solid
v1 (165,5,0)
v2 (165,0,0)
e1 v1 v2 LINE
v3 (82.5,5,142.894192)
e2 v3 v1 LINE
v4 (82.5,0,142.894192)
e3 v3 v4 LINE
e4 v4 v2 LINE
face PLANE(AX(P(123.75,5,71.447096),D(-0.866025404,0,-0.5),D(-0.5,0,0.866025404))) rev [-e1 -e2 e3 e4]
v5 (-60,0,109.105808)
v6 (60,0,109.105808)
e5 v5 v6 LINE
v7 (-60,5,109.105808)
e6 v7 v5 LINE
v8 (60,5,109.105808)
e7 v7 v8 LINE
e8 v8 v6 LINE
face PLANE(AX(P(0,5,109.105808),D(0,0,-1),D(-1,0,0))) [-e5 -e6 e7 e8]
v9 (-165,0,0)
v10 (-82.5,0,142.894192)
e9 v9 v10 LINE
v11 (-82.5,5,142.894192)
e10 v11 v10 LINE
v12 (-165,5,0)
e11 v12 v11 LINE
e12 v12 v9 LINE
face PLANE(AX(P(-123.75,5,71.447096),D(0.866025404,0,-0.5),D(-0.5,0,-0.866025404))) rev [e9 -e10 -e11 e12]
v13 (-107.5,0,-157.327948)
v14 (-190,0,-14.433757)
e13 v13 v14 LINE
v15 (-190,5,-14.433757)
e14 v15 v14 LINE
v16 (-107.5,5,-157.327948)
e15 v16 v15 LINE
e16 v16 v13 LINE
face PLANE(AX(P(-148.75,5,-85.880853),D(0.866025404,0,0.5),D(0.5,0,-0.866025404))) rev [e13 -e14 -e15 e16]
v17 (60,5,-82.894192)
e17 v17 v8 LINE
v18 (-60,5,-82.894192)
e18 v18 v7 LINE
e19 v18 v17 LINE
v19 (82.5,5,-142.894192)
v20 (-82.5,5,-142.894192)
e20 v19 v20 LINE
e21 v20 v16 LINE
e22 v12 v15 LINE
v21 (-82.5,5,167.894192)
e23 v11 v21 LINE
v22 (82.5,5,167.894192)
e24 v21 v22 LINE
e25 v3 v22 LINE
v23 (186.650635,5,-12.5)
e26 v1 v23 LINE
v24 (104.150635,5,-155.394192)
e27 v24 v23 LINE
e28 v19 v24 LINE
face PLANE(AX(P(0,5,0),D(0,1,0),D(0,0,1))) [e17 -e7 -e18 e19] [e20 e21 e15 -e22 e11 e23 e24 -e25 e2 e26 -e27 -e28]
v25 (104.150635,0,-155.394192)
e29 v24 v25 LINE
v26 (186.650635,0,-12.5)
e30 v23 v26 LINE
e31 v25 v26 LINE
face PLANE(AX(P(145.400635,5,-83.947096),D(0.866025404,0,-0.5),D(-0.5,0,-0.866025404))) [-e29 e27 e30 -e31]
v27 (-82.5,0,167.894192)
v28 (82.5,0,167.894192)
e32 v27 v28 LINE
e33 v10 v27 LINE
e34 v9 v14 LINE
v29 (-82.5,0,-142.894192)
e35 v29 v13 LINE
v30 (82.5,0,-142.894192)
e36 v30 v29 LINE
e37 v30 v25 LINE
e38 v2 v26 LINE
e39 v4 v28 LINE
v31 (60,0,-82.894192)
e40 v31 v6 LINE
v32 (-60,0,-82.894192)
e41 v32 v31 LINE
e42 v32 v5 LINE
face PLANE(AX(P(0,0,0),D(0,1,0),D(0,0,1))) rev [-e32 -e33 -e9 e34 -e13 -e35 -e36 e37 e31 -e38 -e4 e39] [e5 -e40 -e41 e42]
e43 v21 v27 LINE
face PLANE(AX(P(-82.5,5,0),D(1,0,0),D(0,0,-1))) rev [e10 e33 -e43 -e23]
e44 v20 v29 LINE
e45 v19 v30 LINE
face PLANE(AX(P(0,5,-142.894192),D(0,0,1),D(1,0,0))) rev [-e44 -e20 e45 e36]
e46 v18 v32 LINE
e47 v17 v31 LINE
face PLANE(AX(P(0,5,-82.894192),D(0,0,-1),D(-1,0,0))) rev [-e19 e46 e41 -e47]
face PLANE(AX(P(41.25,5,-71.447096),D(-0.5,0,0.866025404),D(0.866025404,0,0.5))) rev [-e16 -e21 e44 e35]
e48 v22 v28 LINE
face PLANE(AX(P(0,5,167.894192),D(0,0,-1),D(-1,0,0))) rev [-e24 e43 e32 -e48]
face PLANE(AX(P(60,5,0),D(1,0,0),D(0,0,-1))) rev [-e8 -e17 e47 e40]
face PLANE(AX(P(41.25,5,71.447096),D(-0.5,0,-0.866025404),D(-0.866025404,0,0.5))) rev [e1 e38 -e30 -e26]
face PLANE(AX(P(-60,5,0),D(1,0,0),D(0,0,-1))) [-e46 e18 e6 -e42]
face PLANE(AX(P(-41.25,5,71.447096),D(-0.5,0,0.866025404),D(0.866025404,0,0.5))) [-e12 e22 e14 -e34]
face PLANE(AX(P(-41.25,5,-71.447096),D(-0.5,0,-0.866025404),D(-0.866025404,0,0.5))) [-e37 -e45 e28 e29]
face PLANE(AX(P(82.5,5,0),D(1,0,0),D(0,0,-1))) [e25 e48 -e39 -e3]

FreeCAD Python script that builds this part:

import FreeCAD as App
import Part
import Sketcher

V = App.Vector
Q = App.Units.Quantity

doc = App.newDocument("Part")
body = doc.addObject("PartDesign::Body", "Body")

# Sketch on XZ plane
sketch1 = doc.addObject("Sketcher::SketchObject", "Sketch")
body.addObject(sketch1)
sketch1.AttachmentSupport = (doc.XZ_Plane, [""])
sketch1.MapMode = "FlatFace"
sketch1.addGeometry([
    Part.LineSegment(V(-165, 0, 0), V(-82, 143, 0)),  # 0
    Part.LineSegment(V(-82, 143, 0), V(-82, 168, 0)),  # 1
    Part.LineSegment(V(-82, 168, 0), V(82, 168, 0)),  # 2
    Part.LineSegment(V(82, 168, 0), V(82, 143, 0)),  # 3
    Part.LineSegment(V(82, 143, 0), V(165, 0, 0)),  # 4
    Part.LineSegment(V(165, 0, 0), V(187, -12, 0)),  # 5
    Part.LineSegment(V(187, -12, 0), V(104, -155, 0)),  # 6
    Part.LineSegment(V(104, -155, 0), V(82, -143, 0)),  # 7
    Part.LineSegment(V(82, -143, 0), V(-82, -143, 0)),  # 8
    Part.LineSegment(V(-82, -143, 0), V(-108, -157, 0)),  # 9
    Part.LineSegment(V(-108, -157, 0), V(-190, -14, 0)),  # 10
    Part.LineSegment(V(-190, -14, 0), V(-165, 0, 0)),  # 11
    Part.LineSegment(V(60, 109, 0), V(-60, 109, 0)),  # 12
    Part.LineSegment(V(-60, 109, 0), V(-60, -83, 0)),  # 13
    Part.LineSegment(V(-60, -83, 0), V(60, -83, 0)),  # 14
    Part.LineSegment(V(60, -83, 0), V(60, 109, 0)),  # 15
], False)
sketch1.addConstraint([
    Sketcher.Constraint("Coincident", 0, 2, 1, 1),
    Sketcher.Constraint("Coincident", 1, 2, 2, 1),
    Sketcher.Constraint("Coincident", 2, 2, 3, 1),
    Sketcher.Constraint("Coincident", 3, 2, 4, 1),
    Sketcher.Constraint("Coincident", 4, 2, 5, 1),
    Sketcher.Constraint("Coincident", 5, 2, 6, 1),
    Sketcher.Constraint("Coincident", 6, 2, 7, 1),
    Sketcher.Constraint("Coincident", 7, 2, 8, 1),
    Sketcher.Constraint("Coincident", 8, 2, 9, 1),
    Sketcher.Constraint("Coincident", 9, 2, 10, 1),
    Sketcher.Constraint("Coincident", 10, 2, 11, 1),
    Sketcher.Constraint("Coincident", 11, 2, 0, 1),
    Sketcher.Constraint("Coincident", 12, 2, 13, 1),
    Sketcher.Constraint("Coincident", 13, 2, 14, 1),
    Sketcher.Constraint("Coincident", 14, 2, 15, 1),
    Sketcher.Constraint("Coincident", 15, 2, 12, 1),
    Sketcher.Constraint("Vertical", 1),
    Sketcher.Constraint("Horizontal", 2),
    Sketcher.Constraint("Vertical", 3),
    Sketcher.Constraint("Horizontal", 8),
    Sketcher.Constraint("Horizontal", 12),
    Sketcher.Constraint("Vertical", 13),
    Sketcher.Constraint("Horizontal", 14),
    Sketcher.Constraint("Vertical", 15),
    Sketcher.Constraint("Symmetric", 0, 2, 7, 2, -1, 1),
    Sketcher.Constraint("Symmetric", 3, 2, 8, 2, -1, 1),
    Sketcher.Constraint("Symmetric", 4, 2, 11, 2, -1, 1),
    Sketcher.Constraint("PointOnObject", 4, 2, -1),
    Sketcher.Constraint("Perpendicular", 0, 5),
    Sketcher.Constraint("Perpendicular", 5, 6),
    Sketcher.Constraint("Perpendicular", 6, 7),
    Sketcher.Constraint("Perpendicular", 4, 9),
    Sketcher.Constraint("Perpendicular", 9, 10),
    Sketcher.Constraint("Perpendicular", 10, 11),
    Sketcher.Constraint("Vertical", 3, 2, 7, 2),
    Sketcher.Constraint("DistanceX", 2, 1, 2, 2, 165.0),
    Sketcher.Constraint("DistanceX", 12, 2, 12, 1, 120.0),
    Sketcher.Constraint("DistanceY", 1, 1, 1, 2, 25.0),
    Sketcher.Constraint("DistanceY", 13, 2, 13, 1, 192.0),
    Sketcher.Constraint("Angle", 0, Q("60 deg")),
    Sketcher.Constraint("Distance", 0, 165.0),
    Sketcher.Constraint("Distance", 5, 25.0),
    Sketcher.Constraint("DistanceX", 10, 2, -1, 1, 190.0),
    Sketcher.Constraint("DistanceX", 12, 2, -1, 1, 60.0),
    Sketcher.Constraint("DistanceY", 8, 2, 13, 2, 60.0),
])
pad1 = doc.addObject("PartDesign::Pad", "Pad")
body.addObject(pad1)
pad1.Profile = sketch1
pad1.Length = 5
pad1.Reversed = True

doc.recompute()
